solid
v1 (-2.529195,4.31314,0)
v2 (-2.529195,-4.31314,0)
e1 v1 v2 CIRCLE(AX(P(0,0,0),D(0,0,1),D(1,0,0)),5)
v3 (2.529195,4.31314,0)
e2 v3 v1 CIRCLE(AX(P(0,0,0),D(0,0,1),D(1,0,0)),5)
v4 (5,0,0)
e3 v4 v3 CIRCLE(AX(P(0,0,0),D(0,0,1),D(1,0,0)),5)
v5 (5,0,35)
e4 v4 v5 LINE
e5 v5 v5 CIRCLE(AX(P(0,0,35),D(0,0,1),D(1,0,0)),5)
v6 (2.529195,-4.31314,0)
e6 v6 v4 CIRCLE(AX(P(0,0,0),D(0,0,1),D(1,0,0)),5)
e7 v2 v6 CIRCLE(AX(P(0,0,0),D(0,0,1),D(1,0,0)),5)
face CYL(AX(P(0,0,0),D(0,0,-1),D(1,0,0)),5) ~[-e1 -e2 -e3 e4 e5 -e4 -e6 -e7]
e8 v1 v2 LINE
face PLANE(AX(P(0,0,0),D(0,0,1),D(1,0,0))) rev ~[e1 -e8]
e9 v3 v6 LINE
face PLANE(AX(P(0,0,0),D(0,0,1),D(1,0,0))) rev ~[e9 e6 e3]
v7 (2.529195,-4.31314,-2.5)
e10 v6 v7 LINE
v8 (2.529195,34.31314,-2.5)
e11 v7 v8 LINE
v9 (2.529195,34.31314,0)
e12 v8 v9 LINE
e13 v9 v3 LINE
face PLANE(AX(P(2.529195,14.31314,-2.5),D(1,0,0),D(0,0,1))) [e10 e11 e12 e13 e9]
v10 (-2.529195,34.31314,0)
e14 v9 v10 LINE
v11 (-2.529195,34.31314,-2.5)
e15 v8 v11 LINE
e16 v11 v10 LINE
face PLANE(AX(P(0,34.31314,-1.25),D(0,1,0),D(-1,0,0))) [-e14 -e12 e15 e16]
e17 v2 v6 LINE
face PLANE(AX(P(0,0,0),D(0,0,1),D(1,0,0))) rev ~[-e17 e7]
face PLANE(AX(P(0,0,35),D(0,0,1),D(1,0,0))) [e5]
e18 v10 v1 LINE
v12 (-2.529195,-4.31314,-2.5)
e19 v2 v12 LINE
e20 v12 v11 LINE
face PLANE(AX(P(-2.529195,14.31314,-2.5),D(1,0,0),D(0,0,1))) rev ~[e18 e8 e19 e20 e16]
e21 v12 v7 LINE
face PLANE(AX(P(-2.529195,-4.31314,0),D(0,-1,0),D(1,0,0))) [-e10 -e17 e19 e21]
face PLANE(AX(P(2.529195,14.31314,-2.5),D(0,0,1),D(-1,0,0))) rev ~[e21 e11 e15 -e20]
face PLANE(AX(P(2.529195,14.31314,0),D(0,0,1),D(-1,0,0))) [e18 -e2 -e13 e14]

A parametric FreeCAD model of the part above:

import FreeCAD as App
import Part
import Sketcher

V = App.Vector
Q = App.Units.Quantity


def add_polygon(sketch, points):
    """Adds a closed chain of lines whose ends are joined by coincident constraints."""
    first, n = sketch.GeometryCount, len(points)
    for a, b in zip(points, points[1:] + points[:1]):
        sketch.addGeometry(Part.LineSegment(App.Vector(*a, 0), App.Vector(*b, 0)), False)
    for i in range(n):
        sketch.addConstraint(Sketcher.Constraint("Coincident", first + i, 2, first + (i + 1) % n, 1))

doc = App.newDocument("Part")
body = doc.addObject("PartDesign::Body", "Body")

# Sketch on XY plane
sketch1 = body.newObject("Sketcher::SketchObject", "Sketch")
sketch1.AttachmentSupport = (doc.getObject("XY_Plane"), [""])
sketch1.MapMode = "FlatFace"
sketch1.addGeometry(Part.Circle(V(0, 0, 0), V(0, 0, 1), 5), False)
sketch1.addConstraint([
    Sketcher.Constraint("Coincident", 0, 3, -1, 1),
    Sketcher.Constraint("Diameter", 0, Q("10 mm")),
])
pad1 = body.newObject("PartDesign::Pad", "Pad")
pad1.Profile = sketch1
pad1.Length = 35

# Sketch on XY plane
sketch2 = body.newObject("Sketcher::SketchObject", "Sketch001")
sketch2.AttachmentSupport = (doc.getObject("XY_Plane"), [""])
sketch2.MapMode = "FlatFace"
add_polygon(sketch2, [(-2.529195, -4.31314), (-2.529195, 14.31314), (2.529195, 14.31314), (2.529195, -4.31314)])  # lines 0-3
sketch2.addConstraint([
    Sketcher.Constraint("Vertical", 0),
    Sketcher.Constraint("Horizontal", 1),
    Sketcher.Constraint("Vertical", 2),
    Sketcher.Constraint("Horizontal", 3),
    Sketcher.Constraint("DistanceX", 1, 1, 1, 2, Q("5.05839 mm")),
    Sketcher.Constraint("DistanceY", 0, 1, 0, 2, Q("18.62628 mm")),
    Sketcher.Constraint("DistanceY", -1, 1, 0, 2, Q("14.31314 mm")),
    Sketcher.Constraint("DistanceX", 0, 2, -1, 1, Q("2.529195 mm")),
])
pad2 = body.newObject("PartDesign::Pad", "Pad001")
pad2.Profile = sketch2
pad2.Length = 2.5
pad2.Reversed = True

# Sketch on XZ plane
sketch3 = body.newObject("Sketcher::SketchObject", "Sketch002")
sketch3.AttachmentSupport = (doc.getObject("XZ_Plane"), [""])
sketch3.MapMode = "FlatFace"
sketch3.AttachmentOffset = App.Placement(V(0, 0, -14.31314), App.Rotation())
add_polygon(sketch3, [(2.529195, 0), (2.529195, -2.5), (-2.529195, -2.5), (-2.529195, 0)])  # lines 0-3
sketch3.addConstraint([
    Sketcher.Constraint("Vertical", 0),
    Sketcher.Constraint("Horizontal", 1),
    Sketcher.Constraint("Vertical", 2),
    Sketcher.Constraint("Horizontal", 3),
    Sketcher.Constraint("Symmetric", 2, 2, 3, 2, -1, 1),
    Sketcher.Constraint("DistanceY", 0, 2, 0, 1, Q("2.5 mm")),
    Sketcher.Constraint("DistanceX", 1, 2, 1, 1, Q("5.05839 mm")),
])
pad3 = body.newObject("PartDesign::Pad", "Pad002")
pad3.Profile = sketch3
pad3.Length = 20
pad3.Reversed = True

doc.recompute()
